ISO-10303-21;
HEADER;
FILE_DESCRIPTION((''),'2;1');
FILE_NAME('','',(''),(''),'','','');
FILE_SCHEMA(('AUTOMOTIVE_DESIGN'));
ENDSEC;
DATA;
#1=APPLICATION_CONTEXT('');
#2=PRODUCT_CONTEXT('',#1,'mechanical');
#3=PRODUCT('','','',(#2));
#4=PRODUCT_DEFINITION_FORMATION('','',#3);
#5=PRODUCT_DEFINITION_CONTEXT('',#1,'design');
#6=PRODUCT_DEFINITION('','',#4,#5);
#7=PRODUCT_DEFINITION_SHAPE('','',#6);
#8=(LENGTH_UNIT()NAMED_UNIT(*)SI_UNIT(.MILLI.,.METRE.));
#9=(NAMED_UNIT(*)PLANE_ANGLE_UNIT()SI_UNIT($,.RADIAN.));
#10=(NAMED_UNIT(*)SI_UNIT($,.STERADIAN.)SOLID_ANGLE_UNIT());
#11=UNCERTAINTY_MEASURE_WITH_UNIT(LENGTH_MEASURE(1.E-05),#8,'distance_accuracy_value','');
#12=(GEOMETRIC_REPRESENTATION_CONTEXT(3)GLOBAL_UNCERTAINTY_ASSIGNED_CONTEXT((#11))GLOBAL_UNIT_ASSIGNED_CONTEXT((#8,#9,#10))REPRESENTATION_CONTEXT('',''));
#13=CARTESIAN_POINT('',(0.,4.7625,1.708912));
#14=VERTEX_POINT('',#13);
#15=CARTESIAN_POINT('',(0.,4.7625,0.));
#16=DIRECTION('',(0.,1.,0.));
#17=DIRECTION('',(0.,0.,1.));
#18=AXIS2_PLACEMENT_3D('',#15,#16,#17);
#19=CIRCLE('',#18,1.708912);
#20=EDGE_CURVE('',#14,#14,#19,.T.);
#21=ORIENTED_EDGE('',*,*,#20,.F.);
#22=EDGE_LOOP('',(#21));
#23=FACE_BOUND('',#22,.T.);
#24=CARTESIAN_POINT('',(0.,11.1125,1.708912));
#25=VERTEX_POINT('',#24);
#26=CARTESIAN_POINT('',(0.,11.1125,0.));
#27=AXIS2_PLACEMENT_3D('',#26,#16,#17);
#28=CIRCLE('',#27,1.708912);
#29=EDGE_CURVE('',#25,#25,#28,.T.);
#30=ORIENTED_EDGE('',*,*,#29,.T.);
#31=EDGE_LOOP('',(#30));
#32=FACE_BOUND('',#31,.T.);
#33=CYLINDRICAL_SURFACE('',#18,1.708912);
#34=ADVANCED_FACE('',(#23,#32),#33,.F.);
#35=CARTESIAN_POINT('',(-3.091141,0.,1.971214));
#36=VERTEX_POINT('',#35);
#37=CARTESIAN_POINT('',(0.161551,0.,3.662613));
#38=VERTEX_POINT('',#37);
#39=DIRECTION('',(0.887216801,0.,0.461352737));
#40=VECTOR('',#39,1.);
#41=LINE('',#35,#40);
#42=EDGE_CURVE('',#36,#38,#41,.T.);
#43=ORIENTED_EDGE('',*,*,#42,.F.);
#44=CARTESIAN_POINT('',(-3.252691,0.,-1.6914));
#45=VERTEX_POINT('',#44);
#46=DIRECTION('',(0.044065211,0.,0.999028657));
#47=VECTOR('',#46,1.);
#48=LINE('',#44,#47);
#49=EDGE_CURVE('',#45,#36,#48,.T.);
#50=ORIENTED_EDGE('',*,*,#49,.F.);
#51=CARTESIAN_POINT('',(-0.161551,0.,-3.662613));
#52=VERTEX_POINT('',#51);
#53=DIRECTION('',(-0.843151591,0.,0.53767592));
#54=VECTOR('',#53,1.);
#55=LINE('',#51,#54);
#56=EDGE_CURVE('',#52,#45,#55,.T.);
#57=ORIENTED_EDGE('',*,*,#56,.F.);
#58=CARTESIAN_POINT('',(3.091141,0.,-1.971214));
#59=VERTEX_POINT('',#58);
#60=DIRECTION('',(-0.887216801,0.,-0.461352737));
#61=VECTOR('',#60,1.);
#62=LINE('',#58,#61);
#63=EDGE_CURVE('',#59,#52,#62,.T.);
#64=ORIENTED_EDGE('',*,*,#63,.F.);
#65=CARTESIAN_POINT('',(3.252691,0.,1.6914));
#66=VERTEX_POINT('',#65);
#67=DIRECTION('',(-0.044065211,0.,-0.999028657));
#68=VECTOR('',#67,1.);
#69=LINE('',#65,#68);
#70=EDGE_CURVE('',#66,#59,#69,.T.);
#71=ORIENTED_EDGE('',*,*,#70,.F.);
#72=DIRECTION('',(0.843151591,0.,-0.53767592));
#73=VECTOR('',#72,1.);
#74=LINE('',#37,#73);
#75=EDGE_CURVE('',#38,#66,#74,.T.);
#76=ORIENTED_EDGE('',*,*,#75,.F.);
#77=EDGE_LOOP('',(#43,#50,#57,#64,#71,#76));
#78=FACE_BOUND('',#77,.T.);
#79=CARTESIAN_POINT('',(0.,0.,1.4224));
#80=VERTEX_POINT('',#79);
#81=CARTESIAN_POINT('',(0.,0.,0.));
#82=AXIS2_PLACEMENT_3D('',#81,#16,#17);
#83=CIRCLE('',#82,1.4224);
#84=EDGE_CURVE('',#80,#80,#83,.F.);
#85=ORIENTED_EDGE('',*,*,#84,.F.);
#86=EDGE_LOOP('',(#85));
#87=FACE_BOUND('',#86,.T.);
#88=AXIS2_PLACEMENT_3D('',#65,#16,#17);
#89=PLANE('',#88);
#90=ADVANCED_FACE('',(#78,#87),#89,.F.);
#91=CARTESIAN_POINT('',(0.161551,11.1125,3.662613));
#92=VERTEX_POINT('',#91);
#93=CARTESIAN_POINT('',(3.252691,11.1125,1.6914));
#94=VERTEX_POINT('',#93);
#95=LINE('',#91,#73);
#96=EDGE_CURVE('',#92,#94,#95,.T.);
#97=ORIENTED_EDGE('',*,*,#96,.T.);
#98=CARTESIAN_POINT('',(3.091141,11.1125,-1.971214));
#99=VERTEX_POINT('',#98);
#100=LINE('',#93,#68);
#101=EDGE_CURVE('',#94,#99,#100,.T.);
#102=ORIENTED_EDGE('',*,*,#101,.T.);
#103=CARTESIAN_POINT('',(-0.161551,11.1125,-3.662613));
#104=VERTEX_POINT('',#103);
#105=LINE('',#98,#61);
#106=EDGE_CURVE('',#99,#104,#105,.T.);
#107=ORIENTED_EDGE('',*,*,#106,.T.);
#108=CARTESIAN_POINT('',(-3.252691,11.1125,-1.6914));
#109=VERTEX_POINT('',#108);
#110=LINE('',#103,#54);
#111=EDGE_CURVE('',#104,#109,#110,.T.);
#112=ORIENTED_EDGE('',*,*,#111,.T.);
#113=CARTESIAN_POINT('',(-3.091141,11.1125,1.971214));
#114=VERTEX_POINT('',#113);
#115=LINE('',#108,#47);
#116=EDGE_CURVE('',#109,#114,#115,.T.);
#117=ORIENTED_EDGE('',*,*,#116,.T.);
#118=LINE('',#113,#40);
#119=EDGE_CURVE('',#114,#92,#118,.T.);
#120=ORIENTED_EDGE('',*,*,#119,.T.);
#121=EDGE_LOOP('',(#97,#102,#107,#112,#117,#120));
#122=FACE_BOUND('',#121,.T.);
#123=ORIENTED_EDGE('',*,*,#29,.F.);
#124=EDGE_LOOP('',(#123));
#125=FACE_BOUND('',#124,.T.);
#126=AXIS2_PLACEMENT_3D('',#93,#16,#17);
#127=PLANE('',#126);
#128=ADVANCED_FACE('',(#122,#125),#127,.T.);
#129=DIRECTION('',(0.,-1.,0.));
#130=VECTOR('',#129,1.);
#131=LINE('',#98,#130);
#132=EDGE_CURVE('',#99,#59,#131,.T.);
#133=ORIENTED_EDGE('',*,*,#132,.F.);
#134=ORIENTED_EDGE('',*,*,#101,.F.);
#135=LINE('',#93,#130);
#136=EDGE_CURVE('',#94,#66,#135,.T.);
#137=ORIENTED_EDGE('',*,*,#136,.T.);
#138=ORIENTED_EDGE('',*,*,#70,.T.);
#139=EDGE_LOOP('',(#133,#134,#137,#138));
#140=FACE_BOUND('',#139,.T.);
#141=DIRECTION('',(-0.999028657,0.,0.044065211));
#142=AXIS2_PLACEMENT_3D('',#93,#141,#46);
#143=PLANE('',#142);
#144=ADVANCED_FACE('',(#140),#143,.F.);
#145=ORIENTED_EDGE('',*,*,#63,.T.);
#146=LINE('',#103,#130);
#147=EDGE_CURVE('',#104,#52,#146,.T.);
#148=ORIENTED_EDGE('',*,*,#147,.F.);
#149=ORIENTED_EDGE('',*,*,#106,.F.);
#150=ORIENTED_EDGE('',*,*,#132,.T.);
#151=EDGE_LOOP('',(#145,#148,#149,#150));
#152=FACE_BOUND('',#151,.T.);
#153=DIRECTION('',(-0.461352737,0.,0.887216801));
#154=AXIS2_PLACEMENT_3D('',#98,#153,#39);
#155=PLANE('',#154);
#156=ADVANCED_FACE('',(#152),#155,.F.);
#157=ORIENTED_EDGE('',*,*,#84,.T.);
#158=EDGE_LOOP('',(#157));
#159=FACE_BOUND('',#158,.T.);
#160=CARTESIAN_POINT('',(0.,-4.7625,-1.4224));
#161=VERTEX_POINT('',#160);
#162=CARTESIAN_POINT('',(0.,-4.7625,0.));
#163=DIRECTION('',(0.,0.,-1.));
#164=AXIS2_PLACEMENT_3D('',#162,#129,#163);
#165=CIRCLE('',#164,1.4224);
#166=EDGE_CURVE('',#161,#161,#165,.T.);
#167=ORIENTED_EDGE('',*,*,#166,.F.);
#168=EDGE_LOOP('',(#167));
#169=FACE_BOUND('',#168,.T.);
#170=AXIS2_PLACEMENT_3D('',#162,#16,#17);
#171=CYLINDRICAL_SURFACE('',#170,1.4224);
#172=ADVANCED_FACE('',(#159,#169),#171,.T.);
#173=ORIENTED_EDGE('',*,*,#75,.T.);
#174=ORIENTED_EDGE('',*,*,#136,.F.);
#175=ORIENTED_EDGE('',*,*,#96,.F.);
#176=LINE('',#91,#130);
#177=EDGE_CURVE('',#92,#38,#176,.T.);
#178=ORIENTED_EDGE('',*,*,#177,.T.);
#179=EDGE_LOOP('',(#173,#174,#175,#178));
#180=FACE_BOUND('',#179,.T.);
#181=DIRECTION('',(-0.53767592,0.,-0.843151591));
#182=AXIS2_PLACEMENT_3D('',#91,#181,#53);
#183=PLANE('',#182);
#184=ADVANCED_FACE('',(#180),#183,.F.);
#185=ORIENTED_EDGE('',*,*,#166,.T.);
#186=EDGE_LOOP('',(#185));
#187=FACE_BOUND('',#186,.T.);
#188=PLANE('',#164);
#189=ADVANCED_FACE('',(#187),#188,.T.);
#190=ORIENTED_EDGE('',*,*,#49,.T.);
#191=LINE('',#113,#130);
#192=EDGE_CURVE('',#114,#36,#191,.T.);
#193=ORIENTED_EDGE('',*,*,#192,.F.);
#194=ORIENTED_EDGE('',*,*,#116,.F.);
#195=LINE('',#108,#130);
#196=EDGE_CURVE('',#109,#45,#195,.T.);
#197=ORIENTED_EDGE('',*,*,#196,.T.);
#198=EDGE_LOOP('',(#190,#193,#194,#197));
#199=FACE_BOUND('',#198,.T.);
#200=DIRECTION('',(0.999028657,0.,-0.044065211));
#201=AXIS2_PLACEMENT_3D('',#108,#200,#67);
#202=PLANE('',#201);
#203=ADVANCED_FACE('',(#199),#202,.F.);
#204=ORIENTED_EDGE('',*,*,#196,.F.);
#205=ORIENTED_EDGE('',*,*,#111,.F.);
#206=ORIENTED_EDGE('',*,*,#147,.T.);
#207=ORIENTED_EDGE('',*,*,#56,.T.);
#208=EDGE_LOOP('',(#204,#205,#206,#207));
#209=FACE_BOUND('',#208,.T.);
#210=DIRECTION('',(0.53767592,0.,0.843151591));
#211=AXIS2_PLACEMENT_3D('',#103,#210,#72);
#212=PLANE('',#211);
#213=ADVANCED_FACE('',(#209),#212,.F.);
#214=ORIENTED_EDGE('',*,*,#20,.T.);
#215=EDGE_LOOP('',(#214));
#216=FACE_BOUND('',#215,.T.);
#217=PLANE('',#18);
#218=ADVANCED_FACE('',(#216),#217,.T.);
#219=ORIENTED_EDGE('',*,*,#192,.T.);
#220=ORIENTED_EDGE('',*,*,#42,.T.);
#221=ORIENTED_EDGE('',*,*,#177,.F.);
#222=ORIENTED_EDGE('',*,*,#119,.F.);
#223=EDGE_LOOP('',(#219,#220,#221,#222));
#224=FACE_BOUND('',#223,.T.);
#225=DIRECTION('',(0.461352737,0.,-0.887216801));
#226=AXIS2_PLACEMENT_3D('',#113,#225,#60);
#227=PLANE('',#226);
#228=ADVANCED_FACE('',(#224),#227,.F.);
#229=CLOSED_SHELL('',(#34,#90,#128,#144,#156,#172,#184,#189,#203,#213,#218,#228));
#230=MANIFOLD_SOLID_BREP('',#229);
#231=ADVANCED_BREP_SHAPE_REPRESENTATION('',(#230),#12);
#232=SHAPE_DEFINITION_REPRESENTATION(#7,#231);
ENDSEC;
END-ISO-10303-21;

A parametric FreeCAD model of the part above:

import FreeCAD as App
import Part
import Sketcher
Q = App.Units.Quantity

doc = App.newDocument("Part")
body = doc.addObject("PartDesign::Body", "Body")

sketch1 = doc.addObject("Sketcher::SketchObject", "Sketch")
body.addObject(sketch1)
sketch1.AttachmentSupport = (doc.XZ_Plane, [""])
sketch1.MapMode = "FlatFace"
sketch1.addGeometry([
    Part.LineSegment(App.Vector(3.3, 1.7, 0), App.Vector(3.1, -2, 0)),
    Part.LineSegment(App.Vector(3.1, -2, 0), App.Vector(-0.2, -3.7, 0)),
    Part.LineSegment(App.Vector(-0.2, -3.7, 0), App.Vector(-3.3, -1.7, 0)),
    Part.LineSegment(App.Vector(-3.3, -1.7, 0), App.Vector(-3.1, 2, 0)),
    Part.LineSegment(App.Vector(-3.1, 2, 0), App.Vector(0.2, 3.7, 0)),
    Part.LineSegment(App.Vector(0.2, 3.7, 0), App.Vector(3.3, 1.7, 0)),
], False)
sketch1.addConstraint([
    Sketcher.Constraint("Coincident", 0, 2, 1, 1),
    Sketcher.Constraint("Coincident", 1, 2, 2, 1),
    Sketcher.Constraint("Coincident", 2, 2, 3, 1),
    Sketcher.Constraint("Coincident", 3, 2, 4, 1),
    Sketcher.Constraint("Coincident", 4, 2, 5, 1),
    Sketcher.Constraint("Coincident", 5, 2, 0, 1),
    Sketcher.Constraint("Symmetric", 0, 2, 3, 2, -1, 1),
    Sketcher.Constraint("Symmetric", 1, 2, 4, 2, -1, 1),
    Sketcher.Constraint("Symmetric", 2, 2, 5, 2, -1, 1),
    Sketcher.Constraint("Equal", 0, 1),
    Sketcher.Constraint("Equal", 1, 2),
    Sketcher.Constraint("DistanceY", 2, 2, -1, 1, 1.6914),
    Sketcher.Constraint("DistanceY", 1, 2, 0, 2, 1.6914),
    Sketcher.Constraint("DistanceX", 1, 2, 4, 2, 0.323101),
    Sketcher.Constraint("DistanceX", -1, 1, 0, 2, 3.091141),
])
pad1 = doc.addObject("PartDesign::Pad", "Pad")
body.addObject(pad1)
pad1.Profile = sketch1
pad1.Length = Q("0.4375 in")
pad1.Reversed = True

sketch2 = doc.addObject("Sketcher::SketchObject", "Sketch001")
body.addObject(sketch2)
sketch2.AttachmentSupport = (doc.XZ_Plane, [""])
sketch2.MapMode = "FlatFace"
sketch2.addGeometry(Part.Circle(App.Vector(0, 0, 0), App.Vector(0, 0, 1), 1.4), False)
sketch2.addConstraint([
    Sketcher.Constraint("Coincident", 0, 3, -1, 1),
    Sketcher.Constraint("Diameter", 0, Q("0.112 in")),
])
pad2 = doc.addObject("PartDesign::Pad", "Pad001")
body.addObject(pad2)
pad2.Profile = sketch2
pad2.Length = Q("0.1875 in")

sketch3 = doc.addObject("Sketcher::SketchObject", "Sketch002")
body.addObject(sketch3)
sketch3.AttachmentSupport = (doc.XZ_Plane, [""])
sketch3.MapMode = "FlatFace"
sketch3.AttachmentOffset = App.Placement(App.Vector(0, 0, -0.4375 * 25.4), App.Rotation())
sketch3.addGeometry(Part.Circle(App.Vector(0, 0, 0), App.Vector(0, 0, 1), 1.7), False)
sketch3.addConstraint([
    Sketcher.Constraint("Coincident", 0, 3, -1, 1),
    Sketcher.Constraint("Diameter", 0, 3.417823),
])
pocket1 = doc.addObject("PartDesign::Pocket", "Pocket")
body.addObject(pocket1)
pocket1.Profile = sketch3
pocket1.Length = Q("0.25 in")
pocket1.Reversed = True

doc.recompute()
